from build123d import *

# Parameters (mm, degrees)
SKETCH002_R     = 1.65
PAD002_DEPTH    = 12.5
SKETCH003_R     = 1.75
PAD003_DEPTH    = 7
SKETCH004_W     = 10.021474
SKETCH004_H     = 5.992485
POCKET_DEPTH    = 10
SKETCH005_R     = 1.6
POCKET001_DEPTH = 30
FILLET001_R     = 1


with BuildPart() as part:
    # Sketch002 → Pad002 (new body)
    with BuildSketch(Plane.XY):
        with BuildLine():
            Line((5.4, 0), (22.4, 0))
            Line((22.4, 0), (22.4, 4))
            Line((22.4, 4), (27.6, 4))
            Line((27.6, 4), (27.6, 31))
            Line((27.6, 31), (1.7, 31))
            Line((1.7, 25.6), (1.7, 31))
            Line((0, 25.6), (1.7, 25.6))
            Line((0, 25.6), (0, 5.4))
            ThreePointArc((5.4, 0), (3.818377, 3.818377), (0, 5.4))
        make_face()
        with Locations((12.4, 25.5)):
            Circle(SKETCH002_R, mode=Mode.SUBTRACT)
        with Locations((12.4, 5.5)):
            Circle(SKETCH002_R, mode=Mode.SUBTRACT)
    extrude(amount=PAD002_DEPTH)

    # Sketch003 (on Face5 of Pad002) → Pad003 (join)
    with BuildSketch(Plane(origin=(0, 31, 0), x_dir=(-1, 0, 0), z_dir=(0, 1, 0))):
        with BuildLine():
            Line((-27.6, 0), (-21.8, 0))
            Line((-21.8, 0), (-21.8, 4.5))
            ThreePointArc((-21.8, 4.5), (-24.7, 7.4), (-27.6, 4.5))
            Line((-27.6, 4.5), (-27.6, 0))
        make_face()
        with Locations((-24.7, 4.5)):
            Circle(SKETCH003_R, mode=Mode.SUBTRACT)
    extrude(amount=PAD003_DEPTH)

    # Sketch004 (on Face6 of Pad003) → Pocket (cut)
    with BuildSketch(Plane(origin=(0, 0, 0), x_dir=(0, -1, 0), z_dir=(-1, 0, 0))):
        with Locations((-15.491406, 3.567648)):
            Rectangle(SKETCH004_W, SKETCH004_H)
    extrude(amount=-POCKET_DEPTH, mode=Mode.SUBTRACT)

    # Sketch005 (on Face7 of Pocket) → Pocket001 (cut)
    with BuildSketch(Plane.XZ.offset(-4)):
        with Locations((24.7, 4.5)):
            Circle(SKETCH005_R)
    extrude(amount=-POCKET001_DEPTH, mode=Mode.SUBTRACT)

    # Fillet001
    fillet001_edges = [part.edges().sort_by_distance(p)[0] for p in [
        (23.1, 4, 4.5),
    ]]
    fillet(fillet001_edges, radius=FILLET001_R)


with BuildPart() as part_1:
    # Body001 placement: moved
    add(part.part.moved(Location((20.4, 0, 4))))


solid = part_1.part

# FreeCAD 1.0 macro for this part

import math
import FreeCAD as App
import Part
import Sketcher
from FreeCAD import Vector
Q = App.Units.Quantity


def edges_at(feature, points):
    """Names of the edges that pass closest to the given points."""
    edges = feature.Shape.Edges
    near = lambda p: min(range(len(edges)), key=lambda i: edges[i].distToShape(Part.Vertex(*p))[0])
    return sorted({f"Edge{near(p) + 1}" for p in points})


def add_polygon(sketch, points):
    """Adds a closed chain of lines whose ends are joined by coincident constraints."""
    first, n = sketch.GeometryCount, len(points)
    for a, b in zip(points, points[1:] + points[:1]):
        sketch.addGeometry(Part.LineSegment(App.Vector(*a, 0), App.Vector(*b, 0)), False)
    for i in range(n):
        sketch.addConstraint(Sketcher.Constraint("Coincident", first + i, 2, first + (i + 1) % n, 1))

doc = App.newDocument("Part")
body = doc.addObject("PartDesign::Body", "Body")

sketch1 = body.newObject("Sketcher::SketchObject", "Sketch")
sketch1.AttachmentSupport = (doc.getObject("XY_Plane"), [""])
sketch1.MapMode = "FlatFace"
sketch1.addGeometry([
    Part.LineSegment(Vector(5.4, 0, 0), Vector(22.4, 0, 0)),
    Part.LineSegment(Vector(22.4, 0, 0), Vector(22.4, 4, 0)),
    Part.LineSegment(Vector(22.4, 4, 0), Vector(27.6, 4, 0)),
    Part.LineSegment(Vector(27.6, 4, 0), Vector(27.6, 31, 0)),
    Part.LineSegment(Vector(27.6, 31, 0), Vector(1.7, 31, 0)),
    Part.LineSegment(Vector(1.7, 31, 0), Vector(1.7, 25.6, 0)),
    Part.LineSegment(Vector(1.7, 25.6, 0), Vector(0, 25.6, 0)),
    Part.LineSegment(Vector(0, 25.6, 0), Vector(0, 5.4, 0)),
    Part.ArcOfCircle(Part.Circle(Vector(0.000001, 0.000001, 0), Vector(0, 0, 1), 5.399999), math.radians(-0.000014), math.radians(90.000014)),
    Part.Circle(Vector(12.4, 5.5, 0), Vector(0, 0, 1), 1.65),
    Part.Circle(Vector(12.4, 25.5, 0), Vector(0, 0, 1), 1.65),
], False)
sketch1.addConstraint([
    Sketcher.Constraint("Coincident", 0, 2, 1, 1),
    Sketcher.Constraint("Coincident", 1, 2, 2, 1),
    Sketcher.Constraint("Coincident", 2, 2, 3, 1),
    Sketcher.Constraint("Coincident", 3, 2, 4, 1),
    Sketcher.Constraint("Coincident", 4, 2, 5, 1),
    Sketcher.Constraint("Coincident", 5, 2, 6, 1),
    Sketcher.Constraint("Coincident", 6, 2, 7, 1),
    Sketcher.Constraint("Coincident", 7, 2, 8, 2),
    Sketcher.Constraint("Coincident", 8, 1, 0, 1),
    Sketcher.Constraint("Horizontal", 0),
    Sketcher.Constraint("Vertical", 1),
    Sketcher.Constraint("Horizontal", 2),
    Sketcher.Constraint("Vertical", 3),
    Sketcher.Constraint("Horizontal", 4),
    Sketcher.Constraint("Vertical", 5),
    Sketcher.Constraint("Horizontal", 6),
    Sketcher.Constraint("Vertical", 7),
    Sketcher.Constraint("Coincident", 8, 3, -1, 1),
    Sketcher.Constraint("Equal", 9, 10),
    Sketcher.Constraint("PointOnObject", 0, 2, -1),
    Sketcher.Constraint("PointOnObject", 6, 2, -2),
    Sketcher.Constraint("Vertical", 9, 3, 10, 3),
    Sketcher.Constraint("Diameter", 9, Q("3.3 mm")),
    Sketcher.Constraint("Radius", 8, Q("5.399999 mm")),
    Sketcher.Constraint("DistanceX", 0, 1, 0, 2, Q("17 mm")),
    Sketcher.Constraint("DistanceY", 1, 1, 1, 2, Q("4 mm")),
    Sketcher.Constraint("DistanceY", 3, 1, 3, 2, Q("27 mm")),
    Sketcher.Constraint("DistanceX", 2, 1, 2, 2, Q("5.2 mm")),
    Sketcher.Constraint("DistanceX", 4, 2, 4, 1, Q("25.9 mm")),
    Sketcher.Constraint("DistanceY", 5, 2, 5, 1, Q("5.4 mm")),
    Sketcher.Constraint("DistanceY", 9, 3, 10, 3, Q("20 mm")),
    Sketcher.Constraint("DistanceX", 9, 3, 0, 2, Q("10 mm")),
    Sketcher.Constraint("DistanceY", -1, 1, 9, 3, Q("5.5 mm")),
])
pad1 = body.newObject("PartDesign::Pad", "Pad")
pad1.Profile = sketch1
pad1.Length = 12.5

sketch2 = body.newObject("Sketcher::SketchObject", "Sketch001")
sketch2.AttachmentSupport = (doc.getObject("XZ_Plane"), [""])
sketch2.MapMode = "FlatFace"
sketch2.AttachmentOffset = App.Placement(Vector(0, 0, -31), App.Rotation())
sketch2.addGeometry([
    Part.LineSegment(Vector(27.6, 0, 0), Vector(21.8, 0, 0)),
    Part.LineSegment(Vector(21.8, 0, 0), Vector(21.8, 4.5, 0)),
    Part.ArcOfCircle(Part.Circle(Vector(24.7, 4.5, 0), Vector(0, 0, 1), 2.9), math.radians(0), math.radians(180)),
    Part.LineSegment(Vector(27.6, 4.5, 0), Vector(27.6, 0, 0)),
    Part.Circle(Vector(24.7, 4.5, 0), Vector(0, 0, 1), 1.75),
], False)
sketch2.addConstraint([
    Sketcher.Constraint("Coincident", 0, 2, 1, 1),
    Sketcher.Constraint("Tangent", 1, 2, 2, 2),
    Sketcher.Constraint("Tangent", 2, 1, 3, 1),
    Sketcher.Constraint("Coincident", 3, 2, 0, 1),
    Sketcher.Constraint("Horizontal", 0),
    Sketcher.Constraint("Vertical", 1),
    Sketcher.Constraint("Vertical", 3),
    Sketcher.Constraint("Coincident", 4, 3, 2, 3),
    Sketcher.Constraint("PointOnObject", 0, 2, -1),
    Sketcher.Constraint("Diameter", 4, Q("3.5 mm")),
    Sketcher.Constraint("Radius", 2, Q("2.9 mm")),
    Sketcher.Constraint("DistanceY", 1, 1, 1, 2, Q("4.5 mm")),
    Sketcher.Constraint("DistanceX", -1, 1, 2, 3, Q("24.7 mm")),
])
pad2 = body.newObject("PartDesign::Pad", "Pad001")
pad2.Profile = sketch2
pad2.Length = 7
pad2.Reversed = True

sketch3 = body.newObject("Sketcher::SketchObject", "Sketch002")
sketch3.AttachmentSupport = (doc.getObject("YZ_Plane"), [""])
sketch3.MapMode = "FlatFace"
add_polygon(sketch3, [(20.502143, 6.563891), (20.502143, 0.571406), (10.480669, 0.571406), (10.480669, 6.563891)])
sketch3.addConstraint([
    Sketcher.Constraint("Vertical", 0),
    Sketcher.Constraint("Horizontal", 1),
    Sketcher.Constraint("Vertical", 2),
    Sketcher.Constraint("Horizontal", 3),
    Sketcher.Constraint("DistanceX", 1, 2, 1, 1, Q("10.021474 mm")),
    Sketcher.Constraint("DistanceY", 0, 2, 0, 1, Q("5.992485 mm")),
    Sketcher.Constraint("DistanceX", -1, 1, 1, 2, Q("10.480669 mm")),
    Sketcher.Constraint("DistanceY", -1, 1, 2, 2, Q("6.563891 mm")),
])
pocket1 = body.newObject("PartDesign::Pocket", "Pocket")
pocket1.Profile = sketch3
pocket1.Length = 10
pocket1.Reversed = True

sketch4 = body.newObject("Sketcher::SketchObject", "Sketch003")
sketch4.AttachmentSupport = (doc.getObject("XZ_Plane"), [""])
sketch4.MapMode = "FlatFace"
sketch4.AttachmentOffset = App.Placement(Vector(0, 0, -4), App.Rotation())
sketch4.addGeometry(Part.Circle(Vector(24.7, 4.5, 0), Vector(0, 0, 1), 1.6), False)
sketch4.addConstraint([
    Sketcher.Constraint("Diameter", 0, Q("3.2 mm")),
    Sketcher.Constraint("DistanceX", -1, 1, 0, 3, Q("24.7 mm")),
    Sketcher.Constraint("DistanceY", -1, 1, 0, 3, Q("4.5 mm")),
])
pocket2 = body.newObject("PartDesign::Pocket", "Pocket001")
pocket2.Profile = sketch4
pocket2.Length = 30
doc.recompute()

fillet = body.newObject("PartDesign::Fillet", "Fillet")
fillet.Base = (pocket2, edges_at(pocket2, [(23.1, 4, 4.5)]))
fillet.Radius = 1
body2 = doc.addObject("PartDesign::Body", "Body001")
doc.recompute()

body.Placement = App.Placement(Vector(20.4, 0, 4), App.Rotation(Vector(0, 0, 1), 0))
boolean = body2.newObject("PartDesign::Boolean", "Boolean")
boolean.Type = "Fuse"
boolean.addObjects([body])

doc.recompute()
